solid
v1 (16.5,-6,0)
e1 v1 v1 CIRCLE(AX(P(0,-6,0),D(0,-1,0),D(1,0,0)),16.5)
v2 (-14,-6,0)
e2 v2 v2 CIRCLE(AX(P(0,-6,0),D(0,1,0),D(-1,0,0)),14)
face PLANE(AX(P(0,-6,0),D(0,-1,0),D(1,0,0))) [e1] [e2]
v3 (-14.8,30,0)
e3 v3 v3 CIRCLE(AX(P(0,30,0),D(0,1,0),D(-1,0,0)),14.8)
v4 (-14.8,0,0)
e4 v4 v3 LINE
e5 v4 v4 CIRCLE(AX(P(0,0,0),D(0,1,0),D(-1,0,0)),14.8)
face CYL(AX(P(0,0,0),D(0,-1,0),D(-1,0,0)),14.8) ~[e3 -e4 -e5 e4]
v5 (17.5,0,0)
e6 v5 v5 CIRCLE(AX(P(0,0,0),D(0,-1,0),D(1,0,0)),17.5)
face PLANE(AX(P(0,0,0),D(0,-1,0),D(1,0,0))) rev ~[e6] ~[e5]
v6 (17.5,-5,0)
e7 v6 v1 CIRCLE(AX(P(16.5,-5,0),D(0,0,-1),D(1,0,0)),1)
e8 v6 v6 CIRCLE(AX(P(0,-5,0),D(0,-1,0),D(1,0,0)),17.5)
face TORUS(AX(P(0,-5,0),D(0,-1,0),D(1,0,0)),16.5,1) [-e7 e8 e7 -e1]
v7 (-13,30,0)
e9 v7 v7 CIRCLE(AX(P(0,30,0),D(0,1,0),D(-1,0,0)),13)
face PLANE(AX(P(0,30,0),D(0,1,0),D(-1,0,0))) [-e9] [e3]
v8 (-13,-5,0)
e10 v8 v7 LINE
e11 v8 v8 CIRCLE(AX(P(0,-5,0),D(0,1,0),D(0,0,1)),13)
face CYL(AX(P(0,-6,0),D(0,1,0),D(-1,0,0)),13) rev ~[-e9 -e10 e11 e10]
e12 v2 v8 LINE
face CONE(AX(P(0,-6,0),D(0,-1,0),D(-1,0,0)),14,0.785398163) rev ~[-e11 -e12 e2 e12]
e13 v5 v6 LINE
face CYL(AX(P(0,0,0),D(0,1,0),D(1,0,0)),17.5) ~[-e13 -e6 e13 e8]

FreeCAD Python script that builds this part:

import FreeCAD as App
import Part
import Sketcher


def edges_at(feature, points):
    """Names of the edges that pass closest to the given points."""
    edges = feature.Shape.Edges
    near = lambda p: min(range(len(edges)), key=lambda i: edges[i].distToShape(Part.Vertex(*p))[0])
    return sorted({f"Edge{near(p) + 1}" for p in points})

doc = App.newDocument("Part")
body = doc.addObject("PartDesign::Body", "Body")

# Sketch on XZ plane
sketch1 = body.newObject("Sketcher::SketchObject", "Sketch")
sketch1.AttachmentSupport = (doc.getObject("XZ_Plane"), [""])
sketch1.MapMode = "FlatFace"
sketch1.addGeometry(Part.Circle(App.Vector(0, 0, 0), App.Vector(0, 0, 1), 17.5), False)
sketch1.addConstraint([
    Sketcher.Constraint("Coincident", 0, 3, -1, 1),
    Sketcher.Constraint("Diameter", 0, 35.0),
])
pad1 = body.newObject("PartDesign::Pad", "Pad")
pad1.Profile = sketch1
pad1.Length = 6
doc.recompute()

fillet = body.newObject("PartDesign::Fillet", "Fillet")
fillet.Base = (pad1, edges_at(pad1, [(-17.5, -6, 0)]))
fillet.Radius = 1

# Sketch on XZ plane
sketch2 = body.newObject("Sketcher::SketchObject", "Sketch001")
sketch2.AttachmentSupport = (doc.getObject("XZ_Plane"), [""])
sketch2.MapMode = "FlatFace"
sketch2.addGeometry(Part.Circle(App.Vector(0, 0, 0), App.Vector(0, 0, 1), 14.8), False)
sketch2.addConstraint([
    Sketcher.Constraint("Coincident", 0, 3, -1, 1),
    Sketcher.Constraint("Diameter", 0, 29.6),
])
pad2 = body.newObject("PartDesign::Pad", "Pad001")
pad2.Profile = sketch2
pad2.Length = 30
pad2.Reversed = True

# Sketch on XZ plane
sketch3 = body.newObject("Sketcher::SketchObject", "Sketch002")
sketch3.AttachmentSupport = (doc.getObject("XZ_Plane"), [""])
sketch3.MapMode = "FlatFace"
sketch3.AttachmentOffset = App.Placement(App.Vector(0, 0, 6), App.Rotation())
sketch3.addGeometry(Part.Circle(App.Vector(0, 0, 0), App.Vector(0, 0, 1), 13), False)
sketch3.addConstraint([
    Sketcher.Constraint("Coincident", 0, 3, -1, 1),
    Sketcher.Constraint("Diameter", 0, 26.0),
])
doc.recompute()
hole = body.newObject("PartDesign::Hole", "Hole")
hole.Profile = sketch3
hole.ThreadType = "None"
hole.Diameter = 26
hole.DepthType = "Dimension"
hole.Depth = 60
hole.DrillPoint = "Flat"
hole.HoleCutType = "Countersink"
hole.HoleCutDiameter = 28
hole.HoleCutCountersinkAngle = 90

doc.recompute()
